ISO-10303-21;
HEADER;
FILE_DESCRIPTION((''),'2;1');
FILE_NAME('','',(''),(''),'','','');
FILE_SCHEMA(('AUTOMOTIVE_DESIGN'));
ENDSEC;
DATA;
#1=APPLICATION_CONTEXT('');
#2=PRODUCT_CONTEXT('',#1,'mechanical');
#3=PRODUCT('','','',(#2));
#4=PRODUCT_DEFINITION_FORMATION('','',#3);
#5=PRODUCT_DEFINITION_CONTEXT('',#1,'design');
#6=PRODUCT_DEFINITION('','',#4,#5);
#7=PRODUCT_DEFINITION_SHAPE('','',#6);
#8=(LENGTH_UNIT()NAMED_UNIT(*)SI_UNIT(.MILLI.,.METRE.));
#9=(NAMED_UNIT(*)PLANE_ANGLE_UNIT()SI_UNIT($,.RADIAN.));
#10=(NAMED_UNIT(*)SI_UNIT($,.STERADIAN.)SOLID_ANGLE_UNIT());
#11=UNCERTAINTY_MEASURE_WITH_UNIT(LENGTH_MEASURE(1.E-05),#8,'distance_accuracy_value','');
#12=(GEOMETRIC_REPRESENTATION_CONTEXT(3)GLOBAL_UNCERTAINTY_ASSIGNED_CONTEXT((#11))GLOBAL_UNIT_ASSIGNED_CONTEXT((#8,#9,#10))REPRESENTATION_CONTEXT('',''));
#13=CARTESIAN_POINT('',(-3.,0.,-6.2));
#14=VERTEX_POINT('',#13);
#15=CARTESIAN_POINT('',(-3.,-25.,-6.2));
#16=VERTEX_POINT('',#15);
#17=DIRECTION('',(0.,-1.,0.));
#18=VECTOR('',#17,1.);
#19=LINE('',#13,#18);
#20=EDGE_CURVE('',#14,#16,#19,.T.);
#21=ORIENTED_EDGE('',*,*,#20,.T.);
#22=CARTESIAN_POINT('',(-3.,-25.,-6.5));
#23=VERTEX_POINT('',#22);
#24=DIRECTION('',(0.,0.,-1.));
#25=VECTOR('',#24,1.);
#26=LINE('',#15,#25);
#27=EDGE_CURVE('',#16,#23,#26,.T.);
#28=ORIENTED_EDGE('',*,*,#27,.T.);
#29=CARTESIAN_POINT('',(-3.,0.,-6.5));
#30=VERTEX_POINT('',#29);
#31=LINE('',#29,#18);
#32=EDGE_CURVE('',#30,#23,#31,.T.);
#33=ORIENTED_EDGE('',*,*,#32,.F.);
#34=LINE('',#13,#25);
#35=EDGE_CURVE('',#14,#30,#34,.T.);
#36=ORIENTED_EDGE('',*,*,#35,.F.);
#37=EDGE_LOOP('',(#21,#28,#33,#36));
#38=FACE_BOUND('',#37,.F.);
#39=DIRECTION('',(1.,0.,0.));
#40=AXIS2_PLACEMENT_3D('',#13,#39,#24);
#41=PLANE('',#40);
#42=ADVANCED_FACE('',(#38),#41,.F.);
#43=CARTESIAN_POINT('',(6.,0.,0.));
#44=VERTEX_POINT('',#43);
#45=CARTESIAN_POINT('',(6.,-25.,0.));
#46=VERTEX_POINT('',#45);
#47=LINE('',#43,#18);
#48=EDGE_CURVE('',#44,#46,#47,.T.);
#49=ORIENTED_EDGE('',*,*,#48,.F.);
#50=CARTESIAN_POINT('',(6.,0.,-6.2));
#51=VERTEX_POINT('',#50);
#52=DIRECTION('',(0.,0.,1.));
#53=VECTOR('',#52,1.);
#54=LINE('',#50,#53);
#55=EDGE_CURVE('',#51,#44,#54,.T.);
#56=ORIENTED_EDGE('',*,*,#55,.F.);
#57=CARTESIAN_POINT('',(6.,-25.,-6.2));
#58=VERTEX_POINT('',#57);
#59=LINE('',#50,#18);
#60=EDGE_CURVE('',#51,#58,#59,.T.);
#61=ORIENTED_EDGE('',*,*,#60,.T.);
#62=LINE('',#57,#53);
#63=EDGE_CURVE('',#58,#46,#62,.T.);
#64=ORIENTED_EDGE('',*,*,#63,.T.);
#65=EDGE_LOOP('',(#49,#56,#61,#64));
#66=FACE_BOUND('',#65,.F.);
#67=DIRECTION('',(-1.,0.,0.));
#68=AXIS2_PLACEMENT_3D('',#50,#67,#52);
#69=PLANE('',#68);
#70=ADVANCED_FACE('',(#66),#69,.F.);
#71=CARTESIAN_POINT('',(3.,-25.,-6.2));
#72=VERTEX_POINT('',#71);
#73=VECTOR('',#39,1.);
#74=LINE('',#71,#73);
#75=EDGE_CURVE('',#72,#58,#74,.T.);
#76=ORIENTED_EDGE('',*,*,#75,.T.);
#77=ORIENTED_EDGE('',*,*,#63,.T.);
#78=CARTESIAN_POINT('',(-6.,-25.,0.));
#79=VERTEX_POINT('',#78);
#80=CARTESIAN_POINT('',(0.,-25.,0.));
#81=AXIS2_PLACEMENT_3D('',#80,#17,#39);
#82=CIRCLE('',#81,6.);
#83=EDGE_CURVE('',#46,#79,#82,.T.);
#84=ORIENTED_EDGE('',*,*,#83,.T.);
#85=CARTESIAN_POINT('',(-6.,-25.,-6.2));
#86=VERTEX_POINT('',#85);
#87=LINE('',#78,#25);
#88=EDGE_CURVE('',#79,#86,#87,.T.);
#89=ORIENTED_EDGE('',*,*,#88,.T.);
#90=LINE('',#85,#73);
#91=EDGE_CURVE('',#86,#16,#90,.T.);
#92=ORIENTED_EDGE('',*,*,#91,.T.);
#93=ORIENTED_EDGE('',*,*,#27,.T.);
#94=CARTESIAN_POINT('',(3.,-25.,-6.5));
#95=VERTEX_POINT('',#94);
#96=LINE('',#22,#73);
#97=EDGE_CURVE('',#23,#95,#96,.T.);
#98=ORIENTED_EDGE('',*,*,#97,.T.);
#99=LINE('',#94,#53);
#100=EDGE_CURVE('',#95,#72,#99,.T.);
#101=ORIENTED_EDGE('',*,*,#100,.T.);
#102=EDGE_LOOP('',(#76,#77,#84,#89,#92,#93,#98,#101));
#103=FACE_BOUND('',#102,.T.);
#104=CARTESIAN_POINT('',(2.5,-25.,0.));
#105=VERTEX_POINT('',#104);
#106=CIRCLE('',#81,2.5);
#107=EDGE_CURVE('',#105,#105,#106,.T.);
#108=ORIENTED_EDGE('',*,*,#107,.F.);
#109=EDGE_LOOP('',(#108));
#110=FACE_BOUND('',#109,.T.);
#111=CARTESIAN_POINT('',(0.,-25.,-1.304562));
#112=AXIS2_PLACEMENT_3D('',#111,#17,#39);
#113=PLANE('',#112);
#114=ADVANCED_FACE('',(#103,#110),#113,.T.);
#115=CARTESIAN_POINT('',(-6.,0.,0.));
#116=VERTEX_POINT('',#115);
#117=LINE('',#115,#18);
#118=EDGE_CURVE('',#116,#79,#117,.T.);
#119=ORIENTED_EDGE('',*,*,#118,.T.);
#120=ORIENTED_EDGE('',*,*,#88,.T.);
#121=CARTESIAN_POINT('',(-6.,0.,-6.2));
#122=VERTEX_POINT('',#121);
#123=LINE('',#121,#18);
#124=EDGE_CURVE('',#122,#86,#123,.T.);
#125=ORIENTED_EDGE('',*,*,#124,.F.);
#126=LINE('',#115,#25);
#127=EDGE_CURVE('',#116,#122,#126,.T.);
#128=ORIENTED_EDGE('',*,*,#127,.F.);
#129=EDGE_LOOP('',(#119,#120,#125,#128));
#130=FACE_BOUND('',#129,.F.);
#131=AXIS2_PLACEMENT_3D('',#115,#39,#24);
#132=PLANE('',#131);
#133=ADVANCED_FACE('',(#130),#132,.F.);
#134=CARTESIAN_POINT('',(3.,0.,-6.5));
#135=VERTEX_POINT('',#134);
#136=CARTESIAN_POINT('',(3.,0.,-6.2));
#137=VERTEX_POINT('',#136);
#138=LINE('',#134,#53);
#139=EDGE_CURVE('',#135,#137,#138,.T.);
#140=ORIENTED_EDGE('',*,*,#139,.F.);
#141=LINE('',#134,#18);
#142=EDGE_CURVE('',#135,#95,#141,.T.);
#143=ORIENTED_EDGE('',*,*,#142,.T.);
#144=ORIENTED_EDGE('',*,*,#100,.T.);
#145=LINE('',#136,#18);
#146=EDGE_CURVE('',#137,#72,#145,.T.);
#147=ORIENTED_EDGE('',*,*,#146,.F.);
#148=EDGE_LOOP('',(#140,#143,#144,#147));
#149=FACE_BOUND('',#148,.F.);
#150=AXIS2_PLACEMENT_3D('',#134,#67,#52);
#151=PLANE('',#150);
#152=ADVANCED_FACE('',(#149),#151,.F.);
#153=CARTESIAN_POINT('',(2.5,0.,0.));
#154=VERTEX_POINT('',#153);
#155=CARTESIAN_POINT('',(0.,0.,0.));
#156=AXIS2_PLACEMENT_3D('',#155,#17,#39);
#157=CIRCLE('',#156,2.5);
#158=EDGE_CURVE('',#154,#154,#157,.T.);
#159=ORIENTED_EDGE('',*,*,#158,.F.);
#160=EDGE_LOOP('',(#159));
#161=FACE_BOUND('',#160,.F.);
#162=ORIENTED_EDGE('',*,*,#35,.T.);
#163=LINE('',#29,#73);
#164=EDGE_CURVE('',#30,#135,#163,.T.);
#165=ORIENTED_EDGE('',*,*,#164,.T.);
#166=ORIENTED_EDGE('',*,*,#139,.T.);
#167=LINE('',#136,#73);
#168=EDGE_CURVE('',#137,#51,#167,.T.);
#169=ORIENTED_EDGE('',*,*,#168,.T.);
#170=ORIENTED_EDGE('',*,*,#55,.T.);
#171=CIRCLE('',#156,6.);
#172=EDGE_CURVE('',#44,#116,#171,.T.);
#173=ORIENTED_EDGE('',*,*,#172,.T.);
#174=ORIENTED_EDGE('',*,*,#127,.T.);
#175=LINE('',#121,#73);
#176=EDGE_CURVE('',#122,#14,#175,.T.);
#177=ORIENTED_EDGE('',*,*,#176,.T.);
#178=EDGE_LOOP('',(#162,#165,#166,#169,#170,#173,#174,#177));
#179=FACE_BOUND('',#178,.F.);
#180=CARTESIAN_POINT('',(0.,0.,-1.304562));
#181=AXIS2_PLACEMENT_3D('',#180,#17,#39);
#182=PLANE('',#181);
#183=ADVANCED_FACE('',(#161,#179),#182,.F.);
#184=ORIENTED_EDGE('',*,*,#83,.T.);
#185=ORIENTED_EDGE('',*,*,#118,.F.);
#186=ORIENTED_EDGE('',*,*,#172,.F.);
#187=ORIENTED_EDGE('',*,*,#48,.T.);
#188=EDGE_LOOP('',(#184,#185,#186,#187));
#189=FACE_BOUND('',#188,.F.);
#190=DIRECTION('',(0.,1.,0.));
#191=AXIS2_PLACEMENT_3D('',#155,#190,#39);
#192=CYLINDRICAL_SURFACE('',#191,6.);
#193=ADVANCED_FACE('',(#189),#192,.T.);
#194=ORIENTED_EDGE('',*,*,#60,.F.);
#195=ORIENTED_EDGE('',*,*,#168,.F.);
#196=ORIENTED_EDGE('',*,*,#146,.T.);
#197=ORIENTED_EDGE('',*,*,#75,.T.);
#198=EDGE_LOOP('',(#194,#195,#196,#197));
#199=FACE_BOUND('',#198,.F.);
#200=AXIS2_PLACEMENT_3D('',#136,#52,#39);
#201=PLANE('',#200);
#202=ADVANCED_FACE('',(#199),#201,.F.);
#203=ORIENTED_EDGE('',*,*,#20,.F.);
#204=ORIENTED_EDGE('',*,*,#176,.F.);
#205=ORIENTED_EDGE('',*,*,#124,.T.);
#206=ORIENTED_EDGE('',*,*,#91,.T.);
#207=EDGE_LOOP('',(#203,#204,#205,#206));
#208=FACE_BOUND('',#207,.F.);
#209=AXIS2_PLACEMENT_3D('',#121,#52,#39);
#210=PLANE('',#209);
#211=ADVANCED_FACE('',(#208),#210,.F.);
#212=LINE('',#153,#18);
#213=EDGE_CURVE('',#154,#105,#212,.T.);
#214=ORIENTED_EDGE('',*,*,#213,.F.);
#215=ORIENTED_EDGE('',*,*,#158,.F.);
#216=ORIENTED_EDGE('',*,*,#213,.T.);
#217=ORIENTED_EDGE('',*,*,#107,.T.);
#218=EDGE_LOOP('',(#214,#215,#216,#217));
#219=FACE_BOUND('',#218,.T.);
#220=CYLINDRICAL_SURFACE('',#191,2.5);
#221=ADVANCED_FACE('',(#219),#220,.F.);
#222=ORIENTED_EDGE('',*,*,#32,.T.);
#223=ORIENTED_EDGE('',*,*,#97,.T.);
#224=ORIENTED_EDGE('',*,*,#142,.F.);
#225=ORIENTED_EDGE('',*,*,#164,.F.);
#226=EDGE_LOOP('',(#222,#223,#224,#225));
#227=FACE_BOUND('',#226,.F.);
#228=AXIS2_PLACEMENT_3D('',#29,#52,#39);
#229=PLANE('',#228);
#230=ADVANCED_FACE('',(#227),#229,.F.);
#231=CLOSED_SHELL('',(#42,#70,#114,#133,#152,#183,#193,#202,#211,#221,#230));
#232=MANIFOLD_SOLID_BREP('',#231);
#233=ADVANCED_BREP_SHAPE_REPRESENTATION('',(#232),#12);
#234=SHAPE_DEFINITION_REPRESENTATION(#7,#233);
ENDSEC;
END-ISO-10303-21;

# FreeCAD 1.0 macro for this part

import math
import FreeCAD as App
import Part
import Sketcher

doc = App.newDocument("Part")
body = doc.addObject("PartDesign::Body", "Body")

sketch1 = body.newObject("Sketcher::SketchObject", "Sketch")
sketch1.AttachmentSupport = (doc.getObject("XZ_Plane"), [""])
sketch1.MapMode = "FlatFace"
sketch1.addGeometry([
    Part.LineSegment(App.Vector(6, -6.2, 0), App.Vector(6, 0, 0)),
    Part.ArcOfCircle(Part.Circle(App.Vector(0, 0, 0), App.Vector(0, 0, 1), 6), math.radians(0), math.radians(180)),
    Part.LineSegment(App.Vector(-6, 0, 0), App.Vector(-6, -6.2, 0)),
    Part.LineSegment(App.Vector(-6, -6.2, 0), App.Vector(-3, -6.2, 0)),
    Part.LineSegment(App.Vector(-3, -6.2, 0), App.Vector(-3, -6.5, 0)),
    Part.LineSegment(App.Vector(-3, -6.5, 0), App.Vector(3, -6.5, 0)),
    Part.LineSegment(App.Vector(3, -6.5, 0), App.Vector(3, -6.2, 0)),
    Part.LineSegment(App.Vector(3, -6.2, 0), App.Vector(6, -6.2, 0)),
    Part.Circle(App.Vector(0, 0, 0), App.Vector(0, 0, 1), 2.5),
], False)
sketch1.addConstraint([
    Sketcher.Constraint("Tangent", 0, 2, 1, 1),
    Sketcher.Constraint("Tangent", 1, 2, 2, 1),
    Sketcher.Constraint("Coincident", 2, 2, 3, 1),
    Sketcher.Constraint("Coincident", 3, 2, 4, 1),
    Sketcher.Constraint("Coincident", 4, 2, 5, 1),
    Sketcher.Constraint("Coincident", 5, 2, 6, 1),
    Sketcher.Constraint("Coincident", 6, 2, 7, 1),
    Sketcher.Constraint("Coincident", 7, 2, 0, 1),
    Sketcher.Constraint("Vertical", 0),
    Sketcher.Constraint("Vertical", 2),
    Sketcher.Constraint("Horizontal", 3),
    Sketcher.Constraint("Vertical", 4),
    Sketcher.Constraint("Horizontal", 5),
    Sketcher.Constraint("Vertical", 6),
    Sketcher.Constraint("Horizontal", 7),
    Sketcher.Constraint("Coincident", 1, 3, -1, 1),
    Sketcher.Constraint("Coincident", 8, 3, -1, 1),
    Sketcher.Constraint("Symmetric", 3, 2, 6, 2, -2),
    Sketcher.Constraint("Diameter", 8, 5.0),
    Sketcher.Constraint("Radius", 1, 6.0),
    Sketcher.Constraint("DistanceX", 3, 1, 3, 2, 3.0),
    Sketcher.Constraint("DistanceY", 0, 1, 0, 2, 6.2),
    Sketcher.Constraint("DistanceY", 4, 2, 4, 1, 0.3),
])
pad1 = body.newObject("PartDesign::Pad", "Pad")
pad1.Profile = sketch1
pad1.Length = 25

doc.recompute()
